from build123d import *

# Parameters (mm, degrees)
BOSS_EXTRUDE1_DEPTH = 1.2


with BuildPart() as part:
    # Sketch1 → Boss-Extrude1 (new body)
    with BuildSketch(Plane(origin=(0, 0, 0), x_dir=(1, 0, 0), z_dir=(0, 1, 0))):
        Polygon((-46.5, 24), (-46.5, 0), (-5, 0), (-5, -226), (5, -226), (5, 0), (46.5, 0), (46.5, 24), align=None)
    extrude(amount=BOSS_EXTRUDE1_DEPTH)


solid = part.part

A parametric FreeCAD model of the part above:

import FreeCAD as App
import Part
import Sketcher
from FreeCAD import Vector

doc = App.newDocument("Part")
params = doc.addObject("Spreadsheet::Sheet", "Params")
for row, (alias, value) in enumerate([
    ("sketch1_width", "10 mm"),
    ("sketch1_width2", "93 mm"),
    ("sketch1_height", "24 mm"),
    ("sketch1_height2", "226 mm"),
    ("pad1_length", "1.2 mm"),
], start=1):
    params.set(f"A{row}", alias)
    params.set(f"B{row}", "=" + value)
    params.setAlias(f"B{row}", alias)

body = doc.addObject("PartDesign::Body", "Body")

# Sketch on XZ plane
sketch1 = body.newObject("Sketcher::SketchObject", "Sketch")
sketch1.AttachmentSupport = (doc.getObject("XZ_Plane"), [""])
sketch1.MapMode = "FlatFace"
sketch1.addGeometry([
    Part.LineSegment(Vector(-46, -24, 0), Vector(-46, 0, 0)),  # 0
    Part.LineSegment(Vector(-46, 0, 0), Vector(-5, 0, 0)),  # 1
    Part.LineSegment(Vector(-5, 0, 0), Vector(-5, 226, 0)),  # 2
    Part.LineSegment(Vector(-5, 226, 0), Vector(5, 226, 0)),  # 3
    Part.LineSegment(Vector(5, 226, 0), Vector(5, 0, 0)),  # 4
    Part.LineSegment(Vector(5, 0, 0), Vector(46, 0, 0)),  # 5
    Part.LineSegment(Vector(46, 0, 0), Vector(46, -24, 0)),  # 6
    Part.LineSegment(Vector(46, -24, 0), Vector(-46, -24, 0)),  # 7
], False)
sketch1.addConstraint([
    Sketcher.Constraint("Coincident", 0, 2, 1, 1),
    Sketcher.Constraint("Coincident", 1, 2, 2, 1),
    Sketcher.Constraint("Coincident", 2, 2, 3, 1),
    Sketcher.Constraint("Coincident", 3, 2, 4, 1),
    Sketcher.Constraint("Coincident", 4, 2, 5, 1),
    Sketcher.Constraint("Coincident", 5, 2, 6, 1),
    Sketcher.Constraint("Coincident", 6, 2, 7, 1),
    Sketcher.Constraint("Coincident", 7, 2, 0, 1),
    Sketcher.Constraint("Vertical", 0),
    Sketcher.Constraint("Horizontal", 1),
    Sketcher.Constraint("Vertical", 2),
    Sketcher.Constraint("Horizontal", 3),
    Sketcher.Constraint("Vertical", 4),
    Sketcher.Constraint("Horizontal", 5),
    Sketcher.Constraint("Vertical", 6),
    Sketcher.Constraint("Horizontal", 7),
    Sketcher.Constraint("Symmetric", 1, 2, 4, 2, -1, 1),
    Sketcher.Constraint("Symmetric", 0, 2, 5, 2, -2),
    Sketcher.Constraint("DistanceX", 3, 1, 3, 2, 10.0),
    Sketcher.Constraint("DistanceX", 7, 2, 7, 1, 93.0),
    Sketcher.Constraint("DistanceY", 0, 1, 0, 2, 24.0),
    Sketcher.Constraint("DistanceY", 2, 1, 2, 2, 226.0),
])
sketch1.setExpression("Constraints[18]", "Params.sketch1_width")
sketch1.setExpression("Constraints[19]", "Params.sketch1_width2")
sketch1.setExpression("Constraints[20]", "Params.sketch1_height")
sketch1.setExpression("Constraints[21]", "Params.sketch1_height2")
pad1 = body.newObject("PartDesign::Pad", "Pad")
pad1.Profile = sketch1
pad1.setExpression("Length", "Params.pad1_length")
pad1.Reversed = True

doc.recompute()
